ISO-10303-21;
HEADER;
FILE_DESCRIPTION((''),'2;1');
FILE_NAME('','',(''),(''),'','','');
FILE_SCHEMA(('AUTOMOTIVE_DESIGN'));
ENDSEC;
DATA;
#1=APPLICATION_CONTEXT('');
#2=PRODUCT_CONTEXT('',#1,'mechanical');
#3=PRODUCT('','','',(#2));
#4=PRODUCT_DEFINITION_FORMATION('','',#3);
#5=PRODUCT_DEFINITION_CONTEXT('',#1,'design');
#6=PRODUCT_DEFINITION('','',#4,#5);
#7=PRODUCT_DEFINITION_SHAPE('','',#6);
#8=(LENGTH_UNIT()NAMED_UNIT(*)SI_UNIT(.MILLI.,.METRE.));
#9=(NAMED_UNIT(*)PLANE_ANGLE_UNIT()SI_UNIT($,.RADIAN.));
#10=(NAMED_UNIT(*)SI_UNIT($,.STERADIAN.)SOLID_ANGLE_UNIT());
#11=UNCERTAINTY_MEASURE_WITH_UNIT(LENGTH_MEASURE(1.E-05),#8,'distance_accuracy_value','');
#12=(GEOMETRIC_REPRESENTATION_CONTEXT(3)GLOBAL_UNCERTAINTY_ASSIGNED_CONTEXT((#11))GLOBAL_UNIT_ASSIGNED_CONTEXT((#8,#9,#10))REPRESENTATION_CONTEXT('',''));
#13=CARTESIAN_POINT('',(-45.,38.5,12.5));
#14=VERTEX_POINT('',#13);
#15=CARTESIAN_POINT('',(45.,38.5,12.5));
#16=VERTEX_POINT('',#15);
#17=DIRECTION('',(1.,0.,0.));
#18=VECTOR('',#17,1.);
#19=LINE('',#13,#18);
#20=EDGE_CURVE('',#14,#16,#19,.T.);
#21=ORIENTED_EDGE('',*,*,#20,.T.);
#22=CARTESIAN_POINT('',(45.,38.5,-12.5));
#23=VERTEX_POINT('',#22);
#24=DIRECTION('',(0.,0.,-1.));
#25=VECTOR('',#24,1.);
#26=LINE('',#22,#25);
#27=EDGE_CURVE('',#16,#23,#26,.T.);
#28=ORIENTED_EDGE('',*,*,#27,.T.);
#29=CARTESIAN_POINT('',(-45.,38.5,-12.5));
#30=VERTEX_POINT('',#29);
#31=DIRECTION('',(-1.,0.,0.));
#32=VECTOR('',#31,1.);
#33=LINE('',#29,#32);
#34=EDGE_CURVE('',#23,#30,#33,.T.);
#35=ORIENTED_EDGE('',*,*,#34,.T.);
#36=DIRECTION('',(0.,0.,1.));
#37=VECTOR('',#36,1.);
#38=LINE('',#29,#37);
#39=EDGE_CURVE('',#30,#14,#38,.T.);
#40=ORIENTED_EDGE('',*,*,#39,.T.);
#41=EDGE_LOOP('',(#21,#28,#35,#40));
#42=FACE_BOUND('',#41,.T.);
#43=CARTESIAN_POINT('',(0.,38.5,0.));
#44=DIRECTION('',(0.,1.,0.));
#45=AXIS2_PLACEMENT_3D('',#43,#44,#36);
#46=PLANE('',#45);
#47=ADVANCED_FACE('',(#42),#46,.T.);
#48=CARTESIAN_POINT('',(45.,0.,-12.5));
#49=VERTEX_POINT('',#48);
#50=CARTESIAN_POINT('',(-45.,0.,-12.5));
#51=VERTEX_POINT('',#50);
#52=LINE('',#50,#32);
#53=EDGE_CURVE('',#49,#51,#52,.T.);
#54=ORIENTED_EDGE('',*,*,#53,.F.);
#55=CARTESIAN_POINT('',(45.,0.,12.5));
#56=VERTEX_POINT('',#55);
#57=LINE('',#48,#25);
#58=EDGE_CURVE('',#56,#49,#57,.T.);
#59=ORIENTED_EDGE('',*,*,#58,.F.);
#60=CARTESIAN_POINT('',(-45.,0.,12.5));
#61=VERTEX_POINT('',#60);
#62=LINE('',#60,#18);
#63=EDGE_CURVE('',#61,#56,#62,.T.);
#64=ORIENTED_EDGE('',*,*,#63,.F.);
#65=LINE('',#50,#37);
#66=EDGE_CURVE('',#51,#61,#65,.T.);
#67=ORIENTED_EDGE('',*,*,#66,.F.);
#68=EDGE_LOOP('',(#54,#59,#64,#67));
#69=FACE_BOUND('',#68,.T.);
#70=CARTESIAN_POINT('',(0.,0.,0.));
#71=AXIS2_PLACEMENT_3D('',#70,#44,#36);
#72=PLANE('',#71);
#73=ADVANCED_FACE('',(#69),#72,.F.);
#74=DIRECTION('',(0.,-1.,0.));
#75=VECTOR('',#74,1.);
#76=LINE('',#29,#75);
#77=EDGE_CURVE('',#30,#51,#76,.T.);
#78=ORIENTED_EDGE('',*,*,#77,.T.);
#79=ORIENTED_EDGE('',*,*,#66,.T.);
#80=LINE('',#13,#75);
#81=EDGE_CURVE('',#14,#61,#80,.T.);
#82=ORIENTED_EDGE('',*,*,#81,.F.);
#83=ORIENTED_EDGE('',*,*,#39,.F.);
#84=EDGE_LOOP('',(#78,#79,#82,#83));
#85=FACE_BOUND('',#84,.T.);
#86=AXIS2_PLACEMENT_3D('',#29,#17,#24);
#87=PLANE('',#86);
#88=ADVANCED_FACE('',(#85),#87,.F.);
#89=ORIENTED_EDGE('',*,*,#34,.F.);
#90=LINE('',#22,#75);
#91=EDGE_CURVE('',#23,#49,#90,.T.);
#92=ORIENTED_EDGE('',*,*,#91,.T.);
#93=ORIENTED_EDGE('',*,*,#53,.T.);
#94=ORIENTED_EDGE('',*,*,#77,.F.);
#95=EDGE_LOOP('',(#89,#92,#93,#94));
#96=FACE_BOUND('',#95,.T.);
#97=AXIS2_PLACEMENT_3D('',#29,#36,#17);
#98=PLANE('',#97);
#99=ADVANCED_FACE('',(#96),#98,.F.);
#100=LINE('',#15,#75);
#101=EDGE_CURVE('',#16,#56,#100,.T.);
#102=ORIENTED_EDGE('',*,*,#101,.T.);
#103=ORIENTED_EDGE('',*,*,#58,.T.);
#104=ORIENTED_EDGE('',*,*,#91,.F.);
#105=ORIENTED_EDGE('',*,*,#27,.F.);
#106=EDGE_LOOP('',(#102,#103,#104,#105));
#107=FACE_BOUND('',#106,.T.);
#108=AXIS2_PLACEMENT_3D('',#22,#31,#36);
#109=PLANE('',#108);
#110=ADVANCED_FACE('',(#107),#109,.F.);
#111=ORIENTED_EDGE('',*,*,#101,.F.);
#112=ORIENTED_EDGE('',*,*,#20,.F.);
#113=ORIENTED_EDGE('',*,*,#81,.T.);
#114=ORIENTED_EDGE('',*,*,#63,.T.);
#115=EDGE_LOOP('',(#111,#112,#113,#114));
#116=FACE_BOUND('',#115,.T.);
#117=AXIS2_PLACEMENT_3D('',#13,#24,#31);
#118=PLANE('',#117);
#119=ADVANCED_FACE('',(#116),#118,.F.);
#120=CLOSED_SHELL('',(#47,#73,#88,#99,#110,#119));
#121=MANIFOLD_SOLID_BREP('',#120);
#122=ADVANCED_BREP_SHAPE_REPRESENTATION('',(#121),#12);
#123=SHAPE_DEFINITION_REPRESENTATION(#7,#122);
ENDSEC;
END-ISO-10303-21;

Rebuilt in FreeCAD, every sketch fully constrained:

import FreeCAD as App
import Part
import Sketcher

V = App.Vector
Q = App.Units.Quantity

doc = App.newDocument("Part")
body = doc.addObject("PartDesign::Body", "Body")

sketch1 = body.newObject("Sketcher::SketchObject", "Sketch")
sketch1.AttachmentSupport = (doc.getObject("XZ_Plane"), [""])
sketch1.MapMode = "FlatFace"
sketch1.addGeometry([
    Part.LineSegment(V(-45, -12, 0), V(-45, 12, 0)),
    Part.LineSegment(V(-45, 12, 0), V(45, 12, 0)),
    Part.LineSegment(V(45, 12, 0), V(45, -12, 0)),
    Part.LineSegment(V(45, -12, 0), V(-45, -12, 0)),
], False)
sketch1.addConstraint([
    Sketcher.Constraint("Coincident", 0, 2, 1, 1),
    Sketcher.Constraint("Coincident", 1, 2, 2, 1),
    Sketcher.Constraint("Coincident", 2, 2, 3, 1),
    Sketcher.Constraint("Coincident", 3, 2, 0, 1),
    Sketcher.Constraint("Vertical", 0),
    Sketcher.Constraint("Horizontal", 1),
    Sketcher.Constraint("Vertical", 2),
    Sketcher.Constraint("Horizontal", 3),
    Sketcher.Constraint("Symmetric", 0, 2, 2, 2, -1, 1),
    Sketcher.Constraint("DistanceX", 1, 1, 1, 2, Q("90 mm")),
    Sketcher.Constraint("DistanceY", 0, 1, 0, 2, Q("25 mm")),
])
pad1 = body.newObject("PartDesign::Pad", "Pad")
pad1.Profile = sketch1
pad1.Length = 38.5
pad1.Reversed = True

doc.recompute()
